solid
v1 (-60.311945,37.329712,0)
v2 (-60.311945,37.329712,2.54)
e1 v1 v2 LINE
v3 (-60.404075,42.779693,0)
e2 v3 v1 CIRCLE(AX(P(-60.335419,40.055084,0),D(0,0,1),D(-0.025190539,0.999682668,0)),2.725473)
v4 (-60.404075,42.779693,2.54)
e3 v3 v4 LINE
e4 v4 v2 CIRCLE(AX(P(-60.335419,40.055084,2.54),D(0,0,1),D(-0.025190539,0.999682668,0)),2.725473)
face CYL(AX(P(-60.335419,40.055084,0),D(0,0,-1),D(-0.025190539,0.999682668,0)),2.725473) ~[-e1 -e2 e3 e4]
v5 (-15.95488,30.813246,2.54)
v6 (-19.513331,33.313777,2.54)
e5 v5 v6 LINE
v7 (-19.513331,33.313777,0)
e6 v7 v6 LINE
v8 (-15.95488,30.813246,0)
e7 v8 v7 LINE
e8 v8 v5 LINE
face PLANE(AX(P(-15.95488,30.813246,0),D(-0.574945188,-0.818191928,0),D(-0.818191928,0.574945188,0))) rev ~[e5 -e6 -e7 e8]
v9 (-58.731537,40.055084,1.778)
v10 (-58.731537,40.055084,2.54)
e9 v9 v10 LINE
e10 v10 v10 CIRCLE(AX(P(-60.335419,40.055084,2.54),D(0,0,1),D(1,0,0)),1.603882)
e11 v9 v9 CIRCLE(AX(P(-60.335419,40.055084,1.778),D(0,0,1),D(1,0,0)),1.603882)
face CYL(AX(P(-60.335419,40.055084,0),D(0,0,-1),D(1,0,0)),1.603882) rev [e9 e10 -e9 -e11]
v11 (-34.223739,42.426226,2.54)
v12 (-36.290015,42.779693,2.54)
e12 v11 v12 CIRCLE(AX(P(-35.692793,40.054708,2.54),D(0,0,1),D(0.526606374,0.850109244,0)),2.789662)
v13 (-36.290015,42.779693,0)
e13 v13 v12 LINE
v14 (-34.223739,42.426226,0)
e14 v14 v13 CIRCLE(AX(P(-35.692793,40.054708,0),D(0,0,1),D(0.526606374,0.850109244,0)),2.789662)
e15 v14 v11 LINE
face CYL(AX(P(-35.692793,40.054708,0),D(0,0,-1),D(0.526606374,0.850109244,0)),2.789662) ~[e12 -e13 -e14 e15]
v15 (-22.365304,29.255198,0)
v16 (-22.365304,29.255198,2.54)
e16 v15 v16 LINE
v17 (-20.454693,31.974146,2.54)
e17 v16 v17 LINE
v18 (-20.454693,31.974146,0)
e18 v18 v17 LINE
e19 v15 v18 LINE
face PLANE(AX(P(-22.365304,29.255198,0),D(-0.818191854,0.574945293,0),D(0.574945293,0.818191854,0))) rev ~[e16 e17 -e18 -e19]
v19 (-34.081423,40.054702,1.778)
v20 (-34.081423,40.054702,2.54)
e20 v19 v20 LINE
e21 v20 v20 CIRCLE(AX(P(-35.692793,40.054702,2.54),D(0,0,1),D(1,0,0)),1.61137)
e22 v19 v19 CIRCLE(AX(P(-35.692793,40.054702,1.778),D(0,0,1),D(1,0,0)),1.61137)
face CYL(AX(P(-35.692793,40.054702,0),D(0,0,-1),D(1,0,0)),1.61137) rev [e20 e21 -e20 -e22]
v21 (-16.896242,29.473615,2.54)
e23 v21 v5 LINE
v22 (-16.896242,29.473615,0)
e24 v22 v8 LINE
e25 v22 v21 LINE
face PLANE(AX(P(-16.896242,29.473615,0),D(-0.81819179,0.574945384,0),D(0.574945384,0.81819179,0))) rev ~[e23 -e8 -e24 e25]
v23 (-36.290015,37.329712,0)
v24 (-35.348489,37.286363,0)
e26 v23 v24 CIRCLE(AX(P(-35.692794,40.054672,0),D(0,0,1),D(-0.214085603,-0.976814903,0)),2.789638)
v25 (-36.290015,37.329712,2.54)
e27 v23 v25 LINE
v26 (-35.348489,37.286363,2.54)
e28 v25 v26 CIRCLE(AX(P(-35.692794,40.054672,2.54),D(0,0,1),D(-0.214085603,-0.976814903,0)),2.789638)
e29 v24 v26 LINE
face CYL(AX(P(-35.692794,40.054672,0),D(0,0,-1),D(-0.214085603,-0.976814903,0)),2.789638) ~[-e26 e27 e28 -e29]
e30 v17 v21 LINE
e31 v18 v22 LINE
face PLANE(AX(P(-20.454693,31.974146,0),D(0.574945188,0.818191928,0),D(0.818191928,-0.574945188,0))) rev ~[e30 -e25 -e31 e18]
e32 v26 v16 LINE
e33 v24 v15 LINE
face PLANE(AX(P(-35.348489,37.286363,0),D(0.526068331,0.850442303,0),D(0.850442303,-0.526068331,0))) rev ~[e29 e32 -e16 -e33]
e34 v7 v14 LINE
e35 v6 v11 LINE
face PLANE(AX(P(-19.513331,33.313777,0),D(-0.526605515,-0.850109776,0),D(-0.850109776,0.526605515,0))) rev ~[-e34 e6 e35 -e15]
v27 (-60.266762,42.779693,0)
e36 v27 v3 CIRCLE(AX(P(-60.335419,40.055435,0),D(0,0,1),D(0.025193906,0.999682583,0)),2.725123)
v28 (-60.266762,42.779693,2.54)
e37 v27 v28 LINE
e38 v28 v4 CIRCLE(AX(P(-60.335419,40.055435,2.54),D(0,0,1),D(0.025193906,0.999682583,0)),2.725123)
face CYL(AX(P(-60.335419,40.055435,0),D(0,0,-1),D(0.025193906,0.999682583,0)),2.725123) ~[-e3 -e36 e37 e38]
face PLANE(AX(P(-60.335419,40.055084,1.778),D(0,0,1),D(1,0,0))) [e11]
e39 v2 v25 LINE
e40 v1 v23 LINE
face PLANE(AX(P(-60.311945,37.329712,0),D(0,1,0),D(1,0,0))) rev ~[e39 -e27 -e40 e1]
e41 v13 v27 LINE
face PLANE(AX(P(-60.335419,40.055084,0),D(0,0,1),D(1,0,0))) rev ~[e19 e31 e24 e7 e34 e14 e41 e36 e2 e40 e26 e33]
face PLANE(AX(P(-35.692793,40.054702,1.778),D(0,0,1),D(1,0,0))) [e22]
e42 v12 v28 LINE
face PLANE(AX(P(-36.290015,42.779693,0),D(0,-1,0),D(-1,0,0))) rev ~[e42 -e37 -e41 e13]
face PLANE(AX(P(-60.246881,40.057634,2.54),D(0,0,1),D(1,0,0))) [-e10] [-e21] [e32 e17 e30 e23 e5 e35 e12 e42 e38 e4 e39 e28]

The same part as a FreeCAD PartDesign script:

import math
import FreeCAD as App
import Part
import Sketcher
Q = App.Units.Quantity

doc = App.newDocument("Part")
body = doc.addObject("PartDesign::Body", "Body")

sketch1 = body.newObject("Sketcher::SketchObject", "Sketch")
sketch1.AttachmentSupport = (doc.getObject("XY_Plane"), [""])
sketch1.MapMode = "FlatFace"
sketch1.addGeometry(Part.ArcOfCircle(Part.Circle(App.Vector(-60.34, 40.06, 0), App.Vector(0, 0, 1), 2.73), math.radians(88.56), math.radians(91.44)), False)
sketch1.addGeometry(Part.ArcOfCircle(Part.Circle(App.Vector(-60.34, 40.06, 0), App.Vector(0, 0, 1), 2.73), math.radians(91), math.radians(270)), False)
sketch1.addGeometry(Part.LineSegment(App.Vector(-60.31, 37.33, 0), App.Vector(-36.29, 37.33, 0)), False)
sketch1.addGeometry(Part.ArcOfCircle(Part.Circle(App.Vector(-35.69, 40.05, 0), App.Vector(0, 0, 1), 2.79), math.radians(-102.36), math.radians(-82.91)), False)
sketch1.addGeometry(Part.LineSegment(App.Vector(-35.35, 37.29, 0), App.Vector(-22.37, 29.26, 0)), False)
sketch1.addGeometry(Part.LineSegment(App.Vector(-22.37, 29.26, 0), App.Vector(-20.45, 31.97, 0)), False)
sketch1.addGeometry(Part.LineSegment(App.Vector(-20.45, 31.97, 0), App.Vector(-16.9, 29.47, 0)), False)
sketch1.addGeometry(Part.LineSegment(App.Vector(-16.9, 29.47, 0), App.Vector(-15.95, 30.81, 0)), False)
sketch1.addGeometry(Part.LineSegment(App.Vector(-15.95, 30.81, 0), App.Vector(-19.51, 33.31, 0)), False)
sketch1.addGeometry(Part.LineSegment(App.Vector(-19.51, 33.31, 0), App.Vector(-34.22, 42.43, 0)), False)
sketch1.addGeometry(Part.ArcOfCircle(Part.Circle(App.Vector(-35.69, 40.05, 0), App.Vector(0, 0, 1), 2.79), math.radians(58), math.radians(102)), False)
sketch1.addGeometry(Part.LineSegment(App.Vector(-36.29, 42.78, 0), App.Vector(-60.27, 42.78, 0)), False)
sketch1.addGeometry(Part.Circle(App.Vector(-60.34, 40.06, 0), App.Vector(0, 0, 1), 1.6), False)
sketch1.addGeometry(Part.Circle(App.Vector(-35.69, 40.05, 0), App.Vector(0, 0, 1), 1.61), False)
sketch1.addConstraint(Sketcher.Constraint("Coincident", 0, 2, 1, 1))
sketch1.addConstraint(Sketcher.Constraint("Coincident", 1, 2, 2, 1))
sketch1.addConstraint(Sketcher.Constraint("Coincident", 2, 2, 3, 1))
sketch1.addConstraint(Sketcher.Constraint("Coincident", 3, 2, 4, 1))
sketch1.addConstraint(Sketcher.Constraint("Coincident", 4, 2, 5, 1))
sketch1.addConstraint(Sketcher.Constraint("Coincident", 5, 2, 6, 1))
sketch1.addConstraint(Sketcher.Constraint("Coincident", 6, 2, 7, 1))
sketch1.addConstraint(Sketcher.Constraint("Coincident", 7, 2, 8, 1))
sketch1.addConstraint(Sketcher.Constraint("Coincident", 8, 2, 9, 1))
sketch1.addConstraint(Sketcher.Constraint("Tangent", 9, 2, 10, 1))
sketch1.addConstraint(Sketcher.Constraint("Coincident", 10, 2, 11, 1))
sketch1.addConstraint(Sketcher.Constraint("Coincident", 11, 2, 0, 1))
sketch1.addConstraint(Sketcher.Constraint("Horizontal", 2))
sketch1.addConstraint(Sketcher.Constraint("Horizontal", 11))
sketch1.addConstraint(Sketcher.Constraint("Coincident", 12, 3, 1, 3))
sketch1.addConstraint(Sketcher.Constraint("Coincident", 13, 3, 10, 3))
sketch1.addConstraint(Sketcher.Constraint("Perpendicular", 5, 6))
sketch1.addConstraint(Sketcher.Constraint("Perpendicular", 6, 7))
sketch1.addConstraint(Sketcher.Constraint("Perpendicular", 7, 8))
sketch1.addConstraint(Sketcher.Constraint("Horizontal", 0, 2, 10, 2))
sketch1.addConstraint(Sketcher.Constraint("Vertical", 0, 3, 1, 3))
sketch1.addConstraint(Sketcher.Constraint("Vertical", 3, 3, 10, 3))
sketch1.addConstraint(Sketcher.Constraint("Vertical", 2, 2, 10, 2))
sketch1.addConstraint(Sketcher.Constraint("Equal", 6, 8))
sketch1.addConstraint(Sketcher.Constraint("Diameter", 13, Q("3.22274 mm")))
sketch1.addConstraint(Sketcher.Constraint("Radius", 3, Q("2.789638 mm")))
sketch1.addConstraint(Sketcher.Constraint("Diameter", 12, Q("3.207764 mm")))
sketch1.addConstraint(Sketcher.Constraint("Radius", 0, Q("2.725123 mm")))
sketch1.addConstraint(Sketcher.Constraint("Radius", 1, Q("2.725473 mm")))
sketch1.addConstraint(Sketcher.Constraint("Radius", 10, Q("2.789662 mm")))
sketch1.addConstraint(Sketcher.Constraint("DistanceX", 2, 1, 2, 2, Q("24.02193 mm")))
sketch1.addConstraint(Sketcher.Constraint("DistanceY", -1, 1, 4, 2, Q("29.255198 mm")))
sketch1.addConstraint(Sketcher.Constraint("DistanceX", 3, 3, 5, 2, Q("15.238101 mm")))
sketch1.addConstraint(Sketcher.Constraint("DistanceY", 7, 2, 5, 2, Q("1.1609 mm")))
sketch1.addConstraint(Sketcher.Constraint("Distance", 4, Q("15.266391 mm")))
sketch1.addConstraint(Sketcher.Constraint("DistanceX", 11, 2, 11, 1, Q("23.976747 mm")))
sketch1.addConstraint(Sketcher.Constraint("DistanceX", 0, 3, -1, 1, Q("60.335419 mm")))
sketch1.addConstraint(Sketcher.Constraint("DistanceY", -1, 1, 10, 3, Q("40.054708 mm")))
sketch1.addConstraint(Sketcher.Constraint("DistanceY", -1, 1, 1, 2, Q("37.329712 mm")))
sketch1.addConstraint(Sketcher.Constraint("DistanceX", 3, 2, -1, 1, Q("35.348489 mm")))
sketch1.addConstraint(Sketcher.Constraint("DistanceX", 7, 2, -1, 1, Q("15.95488 mm")))
sketch1.addConstraint(Sketcher.Constraint("DistanceX", 8, 2, -1, 1, Q("19.513331 mm")))
sketch1.addConstraint(Sketcher.Constraint("DistanceX", 9, 2, -1, 1, Q("34.223739 mm")))
pad1 = body.newObject("PartDesign::Pad", "Pad")
pad1.Profile = sketch1
pad1.Length = Q("0.1 in")

sketch2 = body.newObject("Sketcher::SketchObject", "Sketch001")
sketch2.AttachmentSupport = (doc.getObject("XY_Plane"), [""])
sketch2.MapMode = "FlatFace"
sketch2.addGeometry(Part.Circle(App.Vector(-60.3, 40.1, 0), App.Vector(0, 0, 1), 1.6), False)
sketch2.addGeometry(Part.Circle(App.Vector(-35.7, 40.1, 0), App.Vector(0, 0, 1), 1.6), False)
sketch2.addConstraint(Sketcher.Constraint("Diameter", 1, Q("3.22274 mm")))
sketch2.addConstraint(Sketcher.Constraint("Diameter", 0, Q("3.207764 mm")))
sketch2.addConstraint(Sketcher.Constraint("DistanceX", 0, 3, -1, 1, Q("60.335419 mm")))
sketch2.addConstraint(Sketcher.Constraint("DistanceY", -1, 1, 0, 3, Q("40.055084 mm")))
sketch2.addConstraint(Sketcher.Constraint("DistanceX", 1, 3, -1, 1, Q("35.692793 mm")))
sketch2.addConstraint(Sketcher.Constraint("DistanceY", -1, 1, 1, 3, Q("40.054702 mm")))
pad2 = body.newObject("PartDesign::Pad", "Pad001")
pad2.Profile = sketch2
pad2.Length = Q("0.07 in")

doc.recompute()
